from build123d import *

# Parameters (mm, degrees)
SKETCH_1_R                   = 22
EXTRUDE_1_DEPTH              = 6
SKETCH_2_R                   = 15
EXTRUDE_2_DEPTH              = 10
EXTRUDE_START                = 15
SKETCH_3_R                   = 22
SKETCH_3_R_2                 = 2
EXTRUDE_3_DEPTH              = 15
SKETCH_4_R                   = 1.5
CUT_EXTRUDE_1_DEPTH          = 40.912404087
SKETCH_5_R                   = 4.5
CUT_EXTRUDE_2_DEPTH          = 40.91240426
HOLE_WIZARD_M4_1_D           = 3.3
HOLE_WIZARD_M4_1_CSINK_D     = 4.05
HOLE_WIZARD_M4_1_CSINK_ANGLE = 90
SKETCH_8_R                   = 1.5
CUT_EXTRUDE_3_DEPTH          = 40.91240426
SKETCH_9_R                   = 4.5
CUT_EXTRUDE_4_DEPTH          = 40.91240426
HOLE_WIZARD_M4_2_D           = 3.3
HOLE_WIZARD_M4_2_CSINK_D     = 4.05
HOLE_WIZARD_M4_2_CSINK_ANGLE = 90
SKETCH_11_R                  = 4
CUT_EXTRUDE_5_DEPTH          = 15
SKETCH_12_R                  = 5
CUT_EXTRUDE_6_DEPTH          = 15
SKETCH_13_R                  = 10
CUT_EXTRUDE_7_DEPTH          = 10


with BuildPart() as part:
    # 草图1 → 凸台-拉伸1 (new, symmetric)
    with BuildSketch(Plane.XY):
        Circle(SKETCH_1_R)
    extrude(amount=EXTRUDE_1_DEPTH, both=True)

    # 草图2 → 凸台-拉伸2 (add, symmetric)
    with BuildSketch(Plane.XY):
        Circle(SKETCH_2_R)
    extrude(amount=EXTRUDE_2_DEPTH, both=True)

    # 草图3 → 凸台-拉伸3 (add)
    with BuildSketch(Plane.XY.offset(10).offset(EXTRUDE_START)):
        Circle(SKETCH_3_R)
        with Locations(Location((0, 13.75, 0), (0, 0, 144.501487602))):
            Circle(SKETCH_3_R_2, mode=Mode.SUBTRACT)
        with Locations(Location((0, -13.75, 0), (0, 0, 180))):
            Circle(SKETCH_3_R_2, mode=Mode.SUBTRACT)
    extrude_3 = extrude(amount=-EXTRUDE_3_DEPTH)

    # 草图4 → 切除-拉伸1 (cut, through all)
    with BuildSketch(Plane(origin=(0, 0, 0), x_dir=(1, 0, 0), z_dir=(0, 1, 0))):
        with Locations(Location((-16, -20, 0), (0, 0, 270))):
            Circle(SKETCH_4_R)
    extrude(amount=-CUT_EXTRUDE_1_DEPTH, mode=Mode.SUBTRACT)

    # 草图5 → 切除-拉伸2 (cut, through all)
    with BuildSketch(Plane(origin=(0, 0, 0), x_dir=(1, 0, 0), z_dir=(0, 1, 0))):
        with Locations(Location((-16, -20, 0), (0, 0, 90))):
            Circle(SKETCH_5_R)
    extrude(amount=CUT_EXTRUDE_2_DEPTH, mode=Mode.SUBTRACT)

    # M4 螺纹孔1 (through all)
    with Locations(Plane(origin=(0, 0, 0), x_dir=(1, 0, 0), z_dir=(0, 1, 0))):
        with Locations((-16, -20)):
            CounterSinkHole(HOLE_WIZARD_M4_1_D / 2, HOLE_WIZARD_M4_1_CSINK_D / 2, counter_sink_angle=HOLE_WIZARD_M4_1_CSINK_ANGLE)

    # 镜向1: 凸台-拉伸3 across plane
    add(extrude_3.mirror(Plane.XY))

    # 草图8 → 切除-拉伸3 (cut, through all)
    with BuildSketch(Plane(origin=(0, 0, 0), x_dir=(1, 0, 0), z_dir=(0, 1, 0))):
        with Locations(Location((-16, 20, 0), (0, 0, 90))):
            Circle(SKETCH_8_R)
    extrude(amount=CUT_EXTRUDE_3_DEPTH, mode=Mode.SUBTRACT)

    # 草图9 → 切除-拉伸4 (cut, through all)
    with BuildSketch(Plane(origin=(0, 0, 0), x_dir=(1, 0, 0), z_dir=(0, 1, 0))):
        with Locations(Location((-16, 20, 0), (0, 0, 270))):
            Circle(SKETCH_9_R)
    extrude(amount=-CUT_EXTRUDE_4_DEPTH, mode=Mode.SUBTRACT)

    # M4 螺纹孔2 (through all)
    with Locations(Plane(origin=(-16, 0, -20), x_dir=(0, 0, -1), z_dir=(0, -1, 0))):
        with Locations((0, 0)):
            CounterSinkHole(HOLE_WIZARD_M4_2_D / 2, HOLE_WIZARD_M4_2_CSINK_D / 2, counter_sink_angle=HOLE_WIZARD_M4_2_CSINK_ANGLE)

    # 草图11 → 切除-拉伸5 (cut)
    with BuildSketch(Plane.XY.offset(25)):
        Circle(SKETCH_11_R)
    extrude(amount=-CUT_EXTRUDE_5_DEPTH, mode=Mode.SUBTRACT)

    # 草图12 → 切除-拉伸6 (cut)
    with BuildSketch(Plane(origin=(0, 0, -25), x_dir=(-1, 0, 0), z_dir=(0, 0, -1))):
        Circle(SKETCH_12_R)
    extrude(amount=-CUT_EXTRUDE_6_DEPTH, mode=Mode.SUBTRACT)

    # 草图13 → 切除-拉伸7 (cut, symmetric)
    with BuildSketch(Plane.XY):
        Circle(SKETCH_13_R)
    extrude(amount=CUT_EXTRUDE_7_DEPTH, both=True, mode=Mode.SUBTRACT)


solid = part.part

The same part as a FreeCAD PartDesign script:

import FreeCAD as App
import Part
import Sketcher
Q = App.Units.Quantity

doc = App.newDocument("Part")
body = doc.addObject("PartDesign::Body", "Body")

# Sketch on XY plane
sketch1 = doc.addObject("Sketcher::SketchObject", "Sketch")
body.addObject(sketch1)
sketch1.AttachmentSupport = (doc.XY_Plane, [""])
sketch1.MapMode = "FlatFace"
sketch1.addGeometry(Part.Circle(App.Vector(0, 0, 0), App.Vector(0, 0, 1), 22), False)
sketch1.addConstraint([
    Sketcher.Constraint("Coincident", 0, 3, -1, 1),
    Sketcher.Constraint("Diameter", 0, Q("44 mm")),
])
pad1 = doc.addObject("PartDesign::Pad", "Pad")
body.addObject(pad1)
pad1.Profile = sketch1
pad1.Length = 12
pad1.Midplane = True

# Sketch on XY plane
sketch2 = doc.addObject("Sketcher::SketchObject", "Sketch001")
body.addObject(sketch2)
sketch2.AttachmentSupport = (doc.XY_Plane, [""])
sketch2.MapMode = "FlatFace"
sketch2.addGeometry(Part.Circle(App.Vector(0, 0, 0), App.Vector(0, 0, 1), 15), False)
sketch2.addConstraint([
    Sketcher.Constraint("Coincident", 0, 3, -1, 1),
    Sketcher.Constraint("Diameter", 0, Q("30 mm")),
])
pad2 = doc.addObject("PartDesign::Pad", "Pad001")
body.addObject(pad2)
pad2.Profile = sketch2
pad2.Length = 20
pad2.Midplane = True

# Sketch on XY plane
sketch3 = doc.addObject("Sketcher::SketchObject", "Sketch002")
body.addObject(sketch3)
sketch3.AttachmentSupport = (doc.XY_Plane, [""])
sketch3.MapMode = "FlatFace"
sketch3.AttachmentOffset = App.Placement(App.Vector(0, 0, 25), App.Rotation())
sketch3.addGeometry([
    Part.Circle(App.Vector(0, 0, 0), App.Vector(0, 0, 1), 22),
    Part.Circle(App.Vector(0, -13.8, 0), App.Vector(0, 0, 1), 2),
    Part.Circle(App.Vector(0, 13.8, 0), App.Vector(0, 0, 1), 2),
], False)
sketch3.addConstraint([
    Sketcher.Constraint("Coincident", 0, 3, -1, 1),
    Sketcher.Constraint("Equal", 1, 2),
    Sketcher.Constraint("Symmetric", 1, 3, 2, 3, -1, 1),
    Sketcher.Constraint("PointOnObject", 1, 3, -2),
    Sketcher.Constraint("Diameter", 0, Q("44 mm")),
    Sketcher.Constraint("Diameter", 1, Q("4 mm")),
    Sketcher.Constraint("DistanceY", 1, 3, 2, 3, Q("27.5 mm")),
])
pad3 = doc.addObject("PartDesign::Pad", "Pad002")
body.addObject(pad3)
pad3.Profile = sketch3
pad3.Length = 15
pad3.Reversed = True

# Sketch on XZ plane
sketch4 = doc.addObject("Sketcher::SketchObject", "Sketch003")
body.addObject(sketch4)
sketch4.AttachmentSupport = (doc.XZ_Plane, [""])
sketch4.MapMode = "FlatFace"
sketch4.addGeometry(Part.Circle(App.Vector(-16, 20, 0), App.Vector(0, 0, 1), 1.5), False)
sketch4.addConstraint([
    Sketcher.Constraint("Diameter", 0, Q("3 mm")),
    Sketcher.Constraint("DistanceX", 0, 3, -1, 1, Q("16 mm")),
    Sketcher.Constraint("DistanceY", -1, 1, 0, 3, Q("20 mm")),
])
pocket1 = doc.addObject("PartDesign::Pocket", "Pocket")
body.addObject(pocket1)
pocket1.Profile = sketch4
pocket1.Type = "ThroughAll"
pocket1.Reversed = True

# Sketch on XZ plane
sketch5 = doc.addObject("Sketcher::SketchObject", "Sketch004")
body.addObject(sketch5)
sketch5.AttachmentSupport = (doc.XZ_Plane, [""])
sketch5.MapMode = "FlatFace"
sketch5.addGeometry(Part.Circle(App.Vector(-16, 20, 0), App.Vector(0, 0, 1), 4.5), False)
sketch5.addConstraint([
    Sketcher.Constraint("Diameter", 0, Q("9 mm")),
    Sketcher.Constraint("DistanceX", 0, 3, -1, 1, Q("16 mm")),
    Sketcher.Constraint("DistanceY", -1, 1, 0, 3, Q("20 mm")),
])
pocket2 = doc.addObject("PartDesign::Pocket", "Pocket001")
body.addObject(pocket2)
pocket2.Profile = sketch5
pocket2.Type = "ThroughAll"

# Sketch on XZ plane
sketch6 = doc.addObject("Sketcher::SketchObject", "Sketch005")
body.addObject(sketch6)
sketch6.AttachmentSupport = (doc.XZ_Plane, [""])
sketch6.MapMode = "FlatFace"
sketch6.addGeometry(Part.Circle(App.Vector(-16, 20, 0), App.Vector(0, 0, 1), 1.6), False)
sketch6.addConstraint([
    Sketcher.Constraint("Diameter", 0, Q("3.3 mm")),
    Sketcher.Constraint("DistanceX", 0, 3, -1, 1, Q("16 mm")),
    Sketcher.Constraint("DistanceY", -1, 1, 0, 3, Q("20 mm")),
])
doc.recompute()
hole = doc.addObject("PartDesign::Hole", "Hole")
body.addObject(hole)
hole.Profile = sketch6
hole.ThreadType = "None"
hole.Diameter = 3.3
hole.DepthType = "ThroughAll"
hole.HoleCutType = "Countersink"
hole.HoleCutDiameter = 4.05
hole.HoleCutCountersinkAngle = 90
hole.Reversed = True
doc.recompute()

mirrored = doc.addObject("PartDesign::Mirrored", "Mirrored")
body.addObject(mirrored)
mirrored.Originals = [pad3]
mirrored.MirrorPlane = (doc.XY_Plane, [""])
body.Tip = mirrored

# Sketch on XZ plane
sketch7 = doc.addObject("Sketcher::SketchObject", "Sketch006")
body.addObject(sketch7)
sketch7.AttachmentSupport = (doc.XZ_Plane, [""])
sketch7.MapMode = "FlatFace"
sketch7.addGeometry(Part.Circle(App.Vector(-16, -20, 0), App.Vector(0, 0, 1), 1.5), False)
sketch7.addConstraint([
    Sketcher.Constraint("Diameter", 0, Q("3 mm")),
    Sketcher.Constraint("DistanceX", 0, 3, -1, 1, Q("16 mm")),
    Sketcher.Constraint("DistanceY", 0, 3, -1, 1, Q("20 mm")),
])
pocket3 = doc.addObject("PartDesign::Pocket", "Pocket002")
body.addObject(pocket3)
pocket3.Profile = sketch7
pocket3.Type = "ThroughAll"

# Sketch on XZ plane
sketch8 = doc.addObject("Sketcher::SketchObject", "Sketch007")
body.addObject(sketch8)
sketch8.AttachmentSupport = (doc.XZ_Plane, [""])
sketch8.MapMode = "FlatFace"
sketch8.addGeometry(Part.Circle(App.Vector(-16, -20, 0), App.Vector(0, 0, 1), 4.5), False)
sketch8.addConstraint([
    Sketcher.Constraint("Diameter", 0, Q("9 mm")),
    Sketcher.Constraint("DistanceX", 0, 3, -1, 1, Q("16 mm")),
    Sketcher.Constraint("DistanceY", 0, 3, -1, 1, Q("20 mm")),
])
pocket4 = doc.addObject("PartDesign::Pocket", "Pocket003")
body.addObject(pocket4)
pocket4.Profile = sketch8
pocket4.Type = "ThroughAll"
pocket4.Reversed = True

# Sketch on XZ plane
sketch9 = doc.addObject("Sketcher::SketchObject", "Sketch008")
body.addObject(sketch9)
sketch9.AttachmentSupport = (doc.XZ_Plane, [""])
sketch9.MapMode = "FlatFace"
sketch9.addGeometry(Part.Circle(App.Vector(-16, -20, 0), App.Vector(0, 0, 1), 1.6), False)
sketch9.addConstraint([
    Sketcher.Constraint("Diameter", 0, Q("3.3 mm")),
    Sketcher.Constraint("DistanceX", 0, 3, -1, 1, Q("16 mm")),
    Sketcher.Constraint("DistanceY", 0, 3, -1, 1, Q("20 mm")),
])
doc.recompute()
hole2 = doc.addObject("PartDesign::Hole", "Hole001")
body.addObject(hole2)
hole2.Profile = sketch9
hole2.ThreadType = "None"
hole2.Diameter = 3.3
hole2.DepthType = "ThroughAll"
hole2.HoleCutType = "Countersink"
hole2.HoleCutDiameter = 4.05
hole2.HoleCutCountersinkAngle = 90

# Sketch on XY plane
sketch10 = doc.addObject("Sketcher::SketchObject", "Sketch009")
body.addObject(sketch10)
sketch10.AttachmentSupport = (doc.XY_Plane, [""])
sketch10.MapMode = "FlatFace"
sketch10.AttachmentOffset = App.Placement(App.Vector(0, 0, 25), App.Rotation())
sketch10.addGeometry(Part.Circle(App.Vector(0, 0, 0), App.Vector(0, 0, 1), 4), False)
sketch10.addConstraint([
    Sketcher.Constraint("Coincident", 0, 3, -1, 1),
    Sketcher.Constraint("Diameter", 0, Q("8 mm")),
])
pocket5 = doc.addObject("PartDesign::Pocket", "Pocket004")
body.addObject(pocket5)
pocket5.Profile = sketch10
pocket5.Length = 15

# Sketch on XY plane
sketch11 = doc.addObject("Sketcher::SketchObject", "Sketch010")
body.addObject(sketch11)
sketch11.AttachmentSupport = (doc.XY_Plane, [""])
sketch11.MapMode = "FlatFace"
sketch11.AttachmentOffset = App.Placement(App.Vector(0, 0, -25), App.Rotation())
sketch11.addGeometry(Part.Circle(App.Vector(0, 0, 0), App.Vector(0, 0, 1), 5), False)
sketch11.addConstraint([
    Sketcher.Constraint("Coincident", 0, 3, -1, 1),
    Sketcher.Constraint("Diameter", 0, Q("10 mm")),
])
pocket6 = doc.addObject("PartDesign::Pocket", "Pocket005")
body.addObject(pocket6)
pocket6.Profile = sketch11
pocket6.Length = 15
pocket6.Reversed = True

# Sketch on XY plane
sketch12 = doc.addObject("Sketcher::SketchObject", "Sketch011")
body.addObject(sketch12)
sketch12.AttachmentSupport = (doc.XY_Plane, [""])
sketch12.MapMode = "FlatFace"
sketch12.addGeometry(Part.Circle(App.Vector(0, 0, 0), App.Vector(0, 0, 1), 10), False)
sketch12.addConstraint([
    Sketcher.Constraint("Coincident", 0, 3, -1, 1),
    Sketcher.Constraint("Diameter", 0, Q("20 mm")),
])
pocket7 = doc.addObject("PartDesign::Pocket", "Pocket006")
body.addObject(pocket7)
pocket7.Profile = sketch12
pocket7.Length = 20
pocket7.Midplane = True

doc.recompute()
